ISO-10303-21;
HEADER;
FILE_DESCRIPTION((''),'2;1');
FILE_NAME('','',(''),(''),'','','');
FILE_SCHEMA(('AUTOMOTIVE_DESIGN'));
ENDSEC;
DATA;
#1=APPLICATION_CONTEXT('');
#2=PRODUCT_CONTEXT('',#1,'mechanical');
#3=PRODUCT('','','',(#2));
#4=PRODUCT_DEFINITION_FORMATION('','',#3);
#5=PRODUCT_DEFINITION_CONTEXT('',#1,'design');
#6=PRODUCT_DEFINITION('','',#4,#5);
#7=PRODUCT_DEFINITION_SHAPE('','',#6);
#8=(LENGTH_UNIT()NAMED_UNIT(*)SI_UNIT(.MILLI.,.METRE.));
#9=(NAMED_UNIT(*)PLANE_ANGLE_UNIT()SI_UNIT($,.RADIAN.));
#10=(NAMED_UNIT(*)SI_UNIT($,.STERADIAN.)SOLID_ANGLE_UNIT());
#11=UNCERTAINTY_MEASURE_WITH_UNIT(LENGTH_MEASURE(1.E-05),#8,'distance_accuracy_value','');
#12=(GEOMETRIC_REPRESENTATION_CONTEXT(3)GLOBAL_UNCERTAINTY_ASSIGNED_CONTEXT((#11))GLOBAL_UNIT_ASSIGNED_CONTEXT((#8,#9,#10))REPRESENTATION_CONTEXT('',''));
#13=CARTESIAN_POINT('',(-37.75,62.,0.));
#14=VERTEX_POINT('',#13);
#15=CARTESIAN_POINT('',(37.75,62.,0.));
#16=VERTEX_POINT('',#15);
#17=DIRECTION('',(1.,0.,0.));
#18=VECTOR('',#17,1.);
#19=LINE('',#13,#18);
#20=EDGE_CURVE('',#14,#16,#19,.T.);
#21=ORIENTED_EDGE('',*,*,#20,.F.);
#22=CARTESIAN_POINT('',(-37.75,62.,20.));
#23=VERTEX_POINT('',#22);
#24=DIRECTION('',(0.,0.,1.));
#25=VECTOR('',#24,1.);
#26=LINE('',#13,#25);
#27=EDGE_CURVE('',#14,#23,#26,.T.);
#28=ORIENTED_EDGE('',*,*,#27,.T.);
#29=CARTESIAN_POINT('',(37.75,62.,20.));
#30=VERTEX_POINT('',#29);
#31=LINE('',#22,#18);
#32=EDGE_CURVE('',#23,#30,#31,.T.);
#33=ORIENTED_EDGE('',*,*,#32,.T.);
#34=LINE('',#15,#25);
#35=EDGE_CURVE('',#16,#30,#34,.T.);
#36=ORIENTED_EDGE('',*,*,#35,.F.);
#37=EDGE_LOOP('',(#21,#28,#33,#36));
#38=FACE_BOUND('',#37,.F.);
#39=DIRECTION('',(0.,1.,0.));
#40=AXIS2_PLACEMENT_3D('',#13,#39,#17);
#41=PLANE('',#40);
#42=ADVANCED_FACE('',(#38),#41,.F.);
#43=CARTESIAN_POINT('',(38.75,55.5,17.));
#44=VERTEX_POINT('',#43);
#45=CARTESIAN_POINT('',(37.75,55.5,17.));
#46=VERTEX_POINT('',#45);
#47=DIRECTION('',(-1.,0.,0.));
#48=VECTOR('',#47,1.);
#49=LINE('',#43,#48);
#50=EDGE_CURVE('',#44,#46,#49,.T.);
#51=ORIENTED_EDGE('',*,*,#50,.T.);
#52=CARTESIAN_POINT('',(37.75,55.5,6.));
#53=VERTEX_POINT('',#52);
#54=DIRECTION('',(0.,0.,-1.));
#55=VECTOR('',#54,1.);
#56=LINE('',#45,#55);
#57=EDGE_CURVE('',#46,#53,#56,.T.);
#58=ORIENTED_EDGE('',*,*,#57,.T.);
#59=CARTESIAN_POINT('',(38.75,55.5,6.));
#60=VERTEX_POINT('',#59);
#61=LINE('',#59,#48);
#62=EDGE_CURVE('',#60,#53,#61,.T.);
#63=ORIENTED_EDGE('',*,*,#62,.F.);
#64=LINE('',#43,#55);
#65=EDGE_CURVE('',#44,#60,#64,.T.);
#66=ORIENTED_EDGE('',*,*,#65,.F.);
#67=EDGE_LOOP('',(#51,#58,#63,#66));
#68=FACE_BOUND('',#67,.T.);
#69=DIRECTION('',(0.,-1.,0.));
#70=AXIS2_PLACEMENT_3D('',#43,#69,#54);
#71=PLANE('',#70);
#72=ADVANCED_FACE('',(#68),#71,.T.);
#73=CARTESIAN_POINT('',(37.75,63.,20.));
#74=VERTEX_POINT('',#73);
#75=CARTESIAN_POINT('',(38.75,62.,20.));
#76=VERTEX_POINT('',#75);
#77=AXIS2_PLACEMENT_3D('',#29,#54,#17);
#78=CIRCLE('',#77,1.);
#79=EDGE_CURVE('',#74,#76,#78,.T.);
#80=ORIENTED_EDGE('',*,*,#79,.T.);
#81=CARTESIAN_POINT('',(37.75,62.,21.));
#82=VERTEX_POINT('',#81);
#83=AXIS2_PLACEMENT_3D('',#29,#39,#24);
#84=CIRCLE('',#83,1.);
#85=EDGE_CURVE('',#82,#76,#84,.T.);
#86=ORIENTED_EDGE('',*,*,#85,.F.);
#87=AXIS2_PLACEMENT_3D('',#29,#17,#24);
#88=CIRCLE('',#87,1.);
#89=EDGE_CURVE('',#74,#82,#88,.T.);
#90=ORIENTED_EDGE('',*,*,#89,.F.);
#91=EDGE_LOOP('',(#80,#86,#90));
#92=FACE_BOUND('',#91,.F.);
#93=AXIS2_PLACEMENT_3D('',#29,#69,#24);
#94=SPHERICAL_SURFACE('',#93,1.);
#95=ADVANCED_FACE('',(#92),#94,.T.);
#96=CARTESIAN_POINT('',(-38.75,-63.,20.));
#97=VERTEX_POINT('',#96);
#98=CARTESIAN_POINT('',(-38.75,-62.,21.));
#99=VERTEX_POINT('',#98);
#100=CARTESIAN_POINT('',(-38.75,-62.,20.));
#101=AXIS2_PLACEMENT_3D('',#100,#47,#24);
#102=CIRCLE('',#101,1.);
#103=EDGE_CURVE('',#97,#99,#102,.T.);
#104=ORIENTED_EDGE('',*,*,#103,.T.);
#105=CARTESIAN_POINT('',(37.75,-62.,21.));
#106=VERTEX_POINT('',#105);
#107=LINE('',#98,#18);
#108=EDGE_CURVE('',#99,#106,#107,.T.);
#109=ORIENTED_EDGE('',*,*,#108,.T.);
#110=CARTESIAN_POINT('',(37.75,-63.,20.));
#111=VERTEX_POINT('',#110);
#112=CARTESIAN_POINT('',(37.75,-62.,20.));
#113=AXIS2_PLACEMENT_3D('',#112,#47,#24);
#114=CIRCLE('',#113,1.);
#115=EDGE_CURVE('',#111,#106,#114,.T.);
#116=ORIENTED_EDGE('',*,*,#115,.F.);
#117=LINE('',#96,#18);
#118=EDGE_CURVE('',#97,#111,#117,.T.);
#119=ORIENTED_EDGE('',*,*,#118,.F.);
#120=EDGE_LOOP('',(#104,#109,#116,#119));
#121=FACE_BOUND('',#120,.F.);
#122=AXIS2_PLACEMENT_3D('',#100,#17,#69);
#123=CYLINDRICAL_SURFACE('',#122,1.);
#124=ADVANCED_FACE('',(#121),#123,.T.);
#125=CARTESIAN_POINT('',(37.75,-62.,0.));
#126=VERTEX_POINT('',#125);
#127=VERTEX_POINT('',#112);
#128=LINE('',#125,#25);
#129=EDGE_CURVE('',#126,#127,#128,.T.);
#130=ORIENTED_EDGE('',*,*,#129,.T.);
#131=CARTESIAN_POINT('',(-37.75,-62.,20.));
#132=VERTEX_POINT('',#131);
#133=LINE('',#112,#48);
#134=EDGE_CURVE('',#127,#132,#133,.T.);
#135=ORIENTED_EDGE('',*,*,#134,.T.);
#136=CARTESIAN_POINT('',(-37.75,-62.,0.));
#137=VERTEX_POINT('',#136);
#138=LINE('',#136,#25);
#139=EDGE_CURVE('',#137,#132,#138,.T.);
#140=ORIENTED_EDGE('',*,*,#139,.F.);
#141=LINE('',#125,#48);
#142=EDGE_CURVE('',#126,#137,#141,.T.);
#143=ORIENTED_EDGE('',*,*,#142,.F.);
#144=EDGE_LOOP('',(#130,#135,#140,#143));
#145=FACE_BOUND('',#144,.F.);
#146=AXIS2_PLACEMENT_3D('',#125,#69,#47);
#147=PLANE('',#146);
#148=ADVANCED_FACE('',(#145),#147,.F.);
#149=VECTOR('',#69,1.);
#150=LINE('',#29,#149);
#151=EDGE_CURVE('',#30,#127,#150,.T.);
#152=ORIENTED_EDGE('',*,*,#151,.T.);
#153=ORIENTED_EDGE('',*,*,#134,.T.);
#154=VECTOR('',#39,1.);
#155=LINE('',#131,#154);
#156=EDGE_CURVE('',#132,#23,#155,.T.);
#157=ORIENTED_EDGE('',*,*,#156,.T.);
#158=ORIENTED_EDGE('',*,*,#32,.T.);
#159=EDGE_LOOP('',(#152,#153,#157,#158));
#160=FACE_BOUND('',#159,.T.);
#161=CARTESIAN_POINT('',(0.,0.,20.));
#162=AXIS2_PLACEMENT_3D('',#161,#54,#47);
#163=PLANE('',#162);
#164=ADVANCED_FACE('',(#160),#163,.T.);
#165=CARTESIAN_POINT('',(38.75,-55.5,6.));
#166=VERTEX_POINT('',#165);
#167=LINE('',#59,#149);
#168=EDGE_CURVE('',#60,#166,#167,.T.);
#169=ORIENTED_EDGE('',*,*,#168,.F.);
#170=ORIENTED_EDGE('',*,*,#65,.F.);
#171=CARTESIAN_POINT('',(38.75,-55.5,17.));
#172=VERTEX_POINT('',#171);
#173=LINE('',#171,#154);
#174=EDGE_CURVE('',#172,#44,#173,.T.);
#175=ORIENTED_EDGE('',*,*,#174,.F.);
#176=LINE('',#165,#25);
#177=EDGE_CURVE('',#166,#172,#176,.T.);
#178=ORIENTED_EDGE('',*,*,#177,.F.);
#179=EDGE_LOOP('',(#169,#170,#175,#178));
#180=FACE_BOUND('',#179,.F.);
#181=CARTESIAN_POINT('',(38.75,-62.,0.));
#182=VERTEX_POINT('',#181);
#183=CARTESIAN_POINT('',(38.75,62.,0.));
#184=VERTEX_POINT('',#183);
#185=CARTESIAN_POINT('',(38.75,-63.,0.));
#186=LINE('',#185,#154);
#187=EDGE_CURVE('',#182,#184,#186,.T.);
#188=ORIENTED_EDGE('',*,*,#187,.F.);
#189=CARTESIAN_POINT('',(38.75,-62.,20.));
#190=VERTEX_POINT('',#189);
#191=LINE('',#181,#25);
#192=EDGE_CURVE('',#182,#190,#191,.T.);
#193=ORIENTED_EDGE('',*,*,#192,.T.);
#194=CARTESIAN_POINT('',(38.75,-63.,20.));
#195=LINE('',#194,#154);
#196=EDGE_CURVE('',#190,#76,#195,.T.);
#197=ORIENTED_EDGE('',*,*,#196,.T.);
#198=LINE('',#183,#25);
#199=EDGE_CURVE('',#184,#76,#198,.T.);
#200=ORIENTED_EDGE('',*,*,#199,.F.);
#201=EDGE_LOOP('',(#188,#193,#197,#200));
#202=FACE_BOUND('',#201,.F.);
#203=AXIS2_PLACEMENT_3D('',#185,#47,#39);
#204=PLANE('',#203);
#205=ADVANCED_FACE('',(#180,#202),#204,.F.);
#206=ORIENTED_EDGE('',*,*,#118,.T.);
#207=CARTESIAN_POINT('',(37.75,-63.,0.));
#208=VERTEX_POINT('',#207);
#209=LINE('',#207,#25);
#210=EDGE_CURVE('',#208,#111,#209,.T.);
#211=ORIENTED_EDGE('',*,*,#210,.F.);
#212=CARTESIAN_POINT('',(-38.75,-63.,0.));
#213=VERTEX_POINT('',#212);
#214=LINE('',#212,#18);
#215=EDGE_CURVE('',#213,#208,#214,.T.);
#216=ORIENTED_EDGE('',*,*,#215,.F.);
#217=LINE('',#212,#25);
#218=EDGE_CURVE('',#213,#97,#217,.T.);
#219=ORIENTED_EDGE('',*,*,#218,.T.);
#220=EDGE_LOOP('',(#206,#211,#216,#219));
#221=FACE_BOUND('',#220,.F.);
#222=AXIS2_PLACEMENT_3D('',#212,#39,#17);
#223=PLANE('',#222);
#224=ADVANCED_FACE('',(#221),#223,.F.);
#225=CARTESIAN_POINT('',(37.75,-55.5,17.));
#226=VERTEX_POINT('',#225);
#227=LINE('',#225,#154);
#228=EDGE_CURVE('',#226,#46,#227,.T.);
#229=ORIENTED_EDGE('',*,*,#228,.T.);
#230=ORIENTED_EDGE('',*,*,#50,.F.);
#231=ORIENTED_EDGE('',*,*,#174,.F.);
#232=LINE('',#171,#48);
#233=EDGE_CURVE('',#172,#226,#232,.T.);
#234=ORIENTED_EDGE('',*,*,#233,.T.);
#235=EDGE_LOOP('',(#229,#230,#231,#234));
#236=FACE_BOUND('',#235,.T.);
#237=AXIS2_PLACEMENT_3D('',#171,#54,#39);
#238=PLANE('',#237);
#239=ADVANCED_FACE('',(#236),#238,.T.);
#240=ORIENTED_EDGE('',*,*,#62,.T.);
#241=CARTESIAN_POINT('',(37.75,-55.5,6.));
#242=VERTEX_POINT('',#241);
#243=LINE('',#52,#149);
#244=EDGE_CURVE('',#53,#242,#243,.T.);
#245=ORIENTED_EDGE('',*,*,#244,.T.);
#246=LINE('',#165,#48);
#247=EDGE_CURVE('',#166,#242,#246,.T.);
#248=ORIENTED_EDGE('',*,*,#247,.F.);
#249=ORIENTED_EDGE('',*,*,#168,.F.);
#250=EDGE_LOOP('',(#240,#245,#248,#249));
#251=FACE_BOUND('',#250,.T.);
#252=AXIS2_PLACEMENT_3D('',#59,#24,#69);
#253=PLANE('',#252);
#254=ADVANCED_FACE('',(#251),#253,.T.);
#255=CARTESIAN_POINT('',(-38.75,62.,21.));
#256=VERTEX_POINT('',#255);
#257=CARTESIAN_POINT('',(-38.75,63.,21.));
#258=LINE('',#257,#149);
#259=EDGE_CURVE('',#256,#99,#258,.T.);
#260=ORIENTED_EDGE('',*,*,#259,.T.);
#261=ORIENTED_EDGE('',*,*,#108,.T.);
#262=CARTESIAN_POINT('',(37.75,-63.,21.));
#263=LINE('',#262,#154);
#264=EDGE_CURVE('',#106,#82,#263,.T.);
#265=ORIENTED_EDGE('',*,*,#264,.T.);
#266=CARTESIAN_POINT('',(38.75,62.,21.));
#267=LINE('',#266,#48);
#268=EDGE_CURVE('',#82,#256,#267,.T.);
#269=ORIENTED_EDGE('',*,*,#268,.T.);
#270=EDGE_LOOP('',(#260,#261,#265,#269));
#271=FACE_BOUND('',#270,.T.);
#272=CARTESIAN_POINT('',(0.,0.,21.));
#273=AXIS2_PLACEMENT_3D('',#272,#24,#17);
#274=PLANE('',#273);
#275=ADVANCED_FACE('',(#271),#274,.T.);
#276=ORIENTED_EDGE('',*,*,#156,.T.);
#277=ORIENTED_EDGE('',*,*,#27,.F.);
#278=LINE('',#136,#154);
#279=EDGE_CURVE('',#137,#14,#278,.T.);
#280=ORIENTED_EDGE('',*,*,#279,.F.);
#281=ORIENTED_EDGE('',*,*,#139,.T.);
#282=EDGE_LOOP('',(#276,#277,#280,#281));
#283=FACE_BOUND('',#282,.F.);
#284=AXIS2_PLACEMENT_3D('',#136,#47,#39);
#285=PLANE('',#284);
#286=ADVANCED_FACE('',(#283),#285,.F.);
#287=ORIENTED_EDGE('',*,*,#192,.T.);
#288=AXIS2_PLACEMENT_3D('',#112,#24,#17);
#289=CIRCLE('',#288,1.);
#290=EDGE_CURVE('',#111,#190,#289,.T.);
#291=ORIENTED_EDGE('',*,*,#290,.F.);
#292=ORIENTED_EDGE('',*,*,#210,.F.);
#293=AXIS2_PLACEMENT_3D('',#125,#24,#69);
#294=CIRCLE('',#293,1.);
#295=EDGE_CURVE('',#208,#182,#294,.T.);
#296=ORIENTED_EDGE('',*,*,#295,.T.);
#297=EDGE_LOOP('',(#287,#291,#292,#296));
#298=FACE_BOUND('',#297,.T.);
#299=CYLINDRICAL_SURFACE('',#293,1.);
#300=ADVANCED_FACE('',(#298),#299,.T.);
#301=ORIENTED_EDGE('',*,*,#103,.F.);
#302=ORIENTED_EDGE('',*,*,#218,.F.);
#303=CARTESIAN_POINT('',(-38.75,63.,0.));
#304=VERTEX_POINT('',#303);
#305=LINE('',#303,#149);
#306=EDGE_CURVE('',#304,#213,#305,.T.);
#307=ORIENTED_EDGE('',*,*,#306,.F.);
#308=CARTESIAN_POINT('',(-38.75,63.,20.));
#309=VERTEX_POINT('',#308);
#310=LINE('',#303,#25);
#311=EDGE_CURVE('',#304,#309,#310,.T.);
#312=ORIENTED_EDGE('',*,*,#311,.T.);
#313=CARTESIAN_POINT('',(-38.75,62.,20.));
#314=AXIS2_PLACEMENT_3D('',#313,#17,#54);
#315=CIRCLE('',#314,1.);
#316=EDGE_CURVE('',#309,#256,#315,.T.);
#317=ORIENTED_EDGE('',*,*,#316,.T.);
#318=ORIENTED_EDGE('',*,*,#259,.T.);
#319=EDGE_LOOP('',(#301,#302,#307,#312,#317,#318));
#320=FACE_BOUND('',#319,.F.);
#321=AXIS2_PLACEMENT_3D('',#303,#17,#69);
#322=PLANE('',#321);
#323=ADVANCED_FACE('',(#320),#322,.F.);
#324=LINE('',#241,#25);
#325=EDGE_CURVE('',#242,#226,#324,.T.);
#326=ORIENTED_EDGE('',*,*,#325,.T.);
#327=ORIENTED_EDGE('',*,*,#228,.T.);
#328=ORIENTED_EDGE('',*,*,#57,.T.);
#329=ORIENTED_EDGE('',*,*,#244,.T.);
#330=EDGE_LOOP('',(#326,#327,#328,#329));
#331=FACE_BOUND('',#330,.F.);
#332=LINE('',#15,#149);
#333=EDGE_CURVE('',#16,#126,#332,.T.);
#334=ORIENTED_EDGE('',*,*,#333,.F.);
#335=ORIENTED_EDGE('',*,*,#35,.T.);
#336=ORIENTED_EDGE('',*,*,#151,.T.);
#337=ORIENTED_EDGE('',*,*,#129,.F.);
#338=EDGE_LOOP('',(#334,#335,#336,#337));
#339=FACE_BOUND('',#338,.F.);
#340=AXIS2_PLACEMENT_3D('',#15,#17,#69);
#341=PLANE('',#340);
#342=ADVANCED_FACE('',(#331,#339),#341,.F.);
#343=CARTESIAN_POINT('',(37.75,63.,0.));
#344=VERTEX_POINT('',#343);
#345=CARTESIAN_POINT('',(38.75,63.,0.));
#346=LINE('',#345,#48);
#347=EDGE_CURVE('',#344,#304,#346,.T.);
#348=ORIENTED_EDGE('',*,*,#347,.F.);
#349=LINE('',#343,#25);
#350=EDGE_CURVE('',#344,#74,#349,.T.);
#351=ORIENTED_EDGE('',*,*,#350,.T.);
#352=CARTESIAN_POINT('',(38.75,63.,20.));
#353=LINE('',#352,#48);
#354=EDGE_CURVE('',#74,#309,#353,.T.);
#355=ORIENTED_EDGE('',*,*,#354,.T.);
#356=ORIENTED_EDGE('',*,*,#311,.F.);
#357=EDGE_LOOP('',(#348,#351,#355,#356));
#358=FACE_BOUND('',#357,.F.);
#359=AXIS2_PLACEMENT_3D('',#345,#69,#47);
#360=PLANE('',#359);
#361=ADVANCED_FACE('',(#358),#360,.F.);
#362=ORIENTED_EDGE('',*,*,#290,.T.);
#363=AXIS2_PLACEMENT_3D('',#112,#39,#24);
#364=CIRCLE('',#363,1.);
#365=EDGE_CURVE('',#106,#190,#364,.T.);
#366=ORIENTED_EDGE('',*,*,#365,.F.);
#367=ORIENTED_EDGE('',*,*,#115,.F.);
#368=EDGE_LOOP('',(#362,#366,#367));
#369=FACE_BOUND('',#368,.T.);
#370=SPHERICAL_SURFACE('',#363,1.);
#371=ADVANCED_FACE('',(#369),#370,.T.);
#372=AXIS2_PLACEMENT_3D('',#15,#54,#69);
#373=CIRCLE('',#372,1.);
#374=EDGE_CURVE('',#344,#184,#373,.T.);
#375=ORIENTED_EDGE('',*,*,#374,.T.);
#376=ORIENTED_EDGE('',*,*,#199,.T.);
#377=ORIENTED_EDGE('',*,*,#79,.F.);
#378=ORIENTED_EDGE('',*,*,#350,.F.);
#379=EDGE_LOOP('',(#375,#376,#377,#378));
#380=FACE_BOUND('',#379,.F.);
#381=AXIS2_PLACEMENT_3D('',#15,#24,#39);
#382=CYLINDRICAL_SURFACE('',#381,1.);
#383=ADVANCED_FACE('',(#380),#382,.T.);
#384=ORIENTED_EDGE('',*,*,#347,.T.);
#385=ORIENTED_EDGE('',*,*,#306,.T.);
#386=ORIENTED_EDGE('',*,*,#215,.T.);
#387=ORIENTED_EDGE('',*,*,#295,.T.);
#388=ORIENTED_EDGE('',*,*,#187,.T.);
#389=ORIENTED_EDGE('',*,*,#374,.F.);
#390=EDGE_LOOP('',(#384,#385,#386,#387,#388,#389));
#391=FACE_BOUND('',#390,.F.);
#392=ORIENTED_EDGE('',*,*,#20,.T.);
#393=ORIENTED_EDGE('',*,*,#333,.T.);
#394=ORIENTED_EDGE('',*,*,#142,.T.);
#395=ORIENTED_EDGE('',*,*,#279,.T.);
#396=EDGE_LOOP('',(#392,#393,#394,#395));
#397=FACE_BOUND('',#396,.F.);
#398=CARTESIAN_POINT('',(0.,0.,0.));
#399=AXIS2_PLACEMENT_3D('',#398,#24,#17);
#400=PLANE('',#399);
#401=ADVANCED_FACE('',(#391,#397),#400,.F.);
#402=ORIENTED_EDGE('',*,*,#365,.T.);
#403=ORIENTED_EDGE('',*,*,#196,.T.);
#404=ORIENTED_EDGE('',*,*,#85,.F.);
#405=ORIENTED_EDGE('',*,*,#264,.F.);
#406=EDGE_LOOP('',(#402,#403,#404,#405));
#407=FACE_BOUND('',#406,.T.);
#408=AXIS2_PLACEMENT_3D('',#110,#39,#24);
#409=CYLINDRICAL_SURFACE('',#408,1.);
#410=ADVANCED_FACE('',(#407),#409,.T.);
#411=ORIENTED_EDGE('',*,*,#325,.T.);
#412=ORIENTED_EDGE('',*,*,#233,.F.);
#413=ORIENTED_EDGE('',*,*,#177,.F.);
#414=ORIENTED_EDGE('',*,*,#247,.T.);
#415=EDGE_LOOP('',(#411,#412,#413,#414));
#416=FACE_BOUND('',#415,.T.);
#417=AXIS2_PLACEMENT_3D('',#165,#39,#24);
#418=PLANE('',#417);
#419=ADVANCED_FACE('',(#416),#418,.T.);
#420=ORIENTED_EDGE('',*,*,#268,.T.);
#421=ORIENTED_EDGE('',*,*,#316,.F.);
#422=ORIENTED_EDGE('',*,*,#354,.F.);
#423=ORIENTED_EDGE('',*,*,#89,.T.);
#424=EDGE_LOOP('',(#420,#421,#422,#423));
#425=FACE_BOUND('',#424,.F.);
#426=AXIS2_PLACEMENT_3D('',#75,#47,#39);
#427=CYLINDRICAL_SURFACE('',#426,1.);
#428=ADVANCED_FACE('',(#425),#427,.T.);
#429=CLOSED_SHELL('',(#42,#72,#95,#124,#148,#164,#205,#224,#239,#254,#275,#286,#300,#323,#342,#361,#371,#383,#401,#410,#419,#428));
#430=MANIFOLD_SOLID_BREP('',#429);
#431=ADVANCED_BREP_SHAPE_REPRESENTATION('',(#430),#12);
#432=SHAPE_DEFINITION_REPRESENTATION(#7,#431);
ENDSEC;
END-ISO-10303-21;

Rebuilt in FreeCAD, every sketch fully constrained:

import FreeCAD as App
import Part
import Sketcher

V = App.Vector


def edges_at(feature, points):
    """Names of the edges that pass closest to the given points."""
    edges = feature.Shape.Edges
    near = lambda p: min(range(len(edges)), key=lambda i: edges[i].distToShape(Part.Vertex(*p))[0])
    return sorted({f"Edge{near(p) + 1}" for p in points})


def add_polygon(sketch, points):
    """Adds a closed chain of lines whose ends are joined by coincident constraints."""
    first, n = sketch.GeometryCount, len(points)
    for a, b in zip(points, points[1:] + points[:1]):
        sketch.addGeometry(Part.LineSegment(App.Vector(*a, 0), App.Vector(*b, 0)), False)
    for i in range(n):
        sketch.addConstraint(Sketcher.Constraint("Coincident", first + i, 2, first + (i + 1) % n, 1))

doc = App.newDocument("Part")
params = doc.addObject("Spreadsheet::Sheet", "Params")
for row, (alias, value) in enumerate([
    ("sketch1_height", "126 mm"),
    ("sketch1_width", "77.5 mm"),
    ("pad1_length", "21 mm"),
    ("sketch2_height", "124 mm"),
    ("sketch2_width", "75.5 mm"),
    ("pocket1_length", "20 mm"),
    ("sketch3_width", "111 mm"),
    ("sketch3_height", "11 mm"),
    ("pocket2_length", "1 mm"),
    ("fillet_radius", "1 mm"),
], start=1):
    params.set(f"A{row}", alias)
    params.set(f"B{row}", "=" + value)
    params.setAlias(f"B{row}", alias)

body = doc.addObject("PartDesign::Body", "Body")

# Sketch on XY plane
sketch1 = body.newObject("Sketcher::SketchObject", "Sketch")
sketch1.AttachmentSupport = (doc.getObject("XY_Plane"), [""])
sketch1.MapMode = "FlatFace"
add_polygon(sketch1, [(-38.75, 63), (-38.75, -63), (38.75, -63), (38.75, 63)])  # lines 0-3
sketch1.addConstraint(Sketcher.Constraint("Vertical", 0))
sketch1.addConstraint(Sketcher.Constraint("Horizontal", 1))
sketch1.addConstraint(Sketcher.Constraint("Vertical", 2))
sketch1.addConstraint(Sketcher.Constraint("Horizontal", 3))
sketch1.addConstraint(Sketcher.Constraint("Symmetric", 0, 2, 2, 2, -1, 1))
sketch1.addConstraint(Sketcher.Constraint("DistanceY", 0, 2, 0, 1, 126.0))
sketch1.addConstraint(Sketcher.Constraint("DistanceX", 1, 1, 1, 2, 77.5))
sketch1.setExpression("Constraints[9]", "Params.sketch1_height")
sketch1.setExpression("Constraints[10]", "Params.sketch1_width")
pad1 = body.newObject("PartDesign::Pad", "Pad")
pad1.Profile = sketch1
pad1.setExpression("Length", "Params.pad1_length")

# Sketch on XY plane
sketch2 = body.newObject("Sketcher::SketchObject", "Sketch001")
sketch2.AttachmentSupport = (doc.getObject("XY_Plane"), [""])
sketch2.MapMode = "FlatFace"
add_polygon(sketch2, [(37.75, 62), (37.75, -62), (-37.75, -62), (-37.75, 62)])  # lines 0-3
sketch2.addConstraint(Sketcher.Constraint("Vertical", 0))
sketch2.addConstraint(Sketcher.Constraint("Horizontal", 1))
sketch2.addConstraint(Sketcher.Constraint("Vertical", 2))
sketch2.addConstraint(Sketcher.Constraint("Horizontal", 3))
sketch2.addConstraint(Sketcher.Constraint("Symmetric", 0, 2, 2, 2, -1, 1))
sketch2.addConstraint(Sketcher.Constraint("DistanceY", 0, 2, 0, 1, 124.0))
sketch2.addConstraint(Sketcher.Constraint("DistanceX", 1, 2, 1, 1, 75.5))
sketch2.setExpression("Constraints[9]", "Params.sketch2_height")
sketch2.setExpression("Constraints[10]", "Params.sketch2_width")
pocket1 = body.newObject("PartDesign::Pocket", "Pocket")
pocket1.Profile = sketch2
pocket1.setExpression("Length", "Params.pocket1_length")
pocket1.Reversed = True

# Sketch on YZ plane
sketch3 = body.newObject("Sketcher::SketchObject", "Sketch002")
sketch3.AttachmentSupport = (doc.getObject("YZ_Plane"), [""])
sketch3.MapMode = "FlatFace"
sketch3.AttachmentOffset = App.Placement(V(0, 0, 38.75), App.Rotation())
add_polygon(sketch3, [(-55.5, 17), (-55.5, 6), (55.5, 6), (55.5, 17)])  # lines 0-3
sketch3.addConstraint(Sketcher.Constraint("Vertical", 0))
sketch3.addConstraint(Sketcher.Constraint("Horizontal", 1))
sketch3.addConstraint(Sketcher.Constraint("Vertical", 2))
sketch3.addConstraint(Sketcher.Constraint("Horizontal", 3))
sketch3.addConstraint(Sketcher.Constraint("DistanceY", -1, 1, 0, 2, 6.0))
sketch3.addConstraint(Sketcher.Constraint("DistanceX", 1, 1, 1, 2, 111.0))
sketch3.addConstraint(Sketcher.Constraint("DistanceY", 0, 2, 0, 1, 11.0))
sketch3.addConstraint(Sketcher.Constraint("DistanceX", 0, 2, -1, 1, 55.5))
sketch3.setExpression("Constraints[9]", "Params.sketch3_width")
sketch3.setExpression("Constraints[10]", "Params.sketch3_height")
pocket2 = body.newObject("PartDesign::Pocket", "Pocket001")
pocket2.Profile = sketch3
pocket2.setExpression("Length", "Params.pocket2_length")
doc.recompute()

fillet = body.newObject("PartDesign::Fillet", "Fillet")
fillet.Base = (pocket2, edges_at(pocket2, [
    (38.75, 0, 21),
    (0, 63, 21),
    (0, -63, 21),
    (38.75, -63, 10.5),
    (38.75, 63, 10.5),
]))
fillet.setExpression("Radius", "Params.fillet_radius")

doc.recompute()
